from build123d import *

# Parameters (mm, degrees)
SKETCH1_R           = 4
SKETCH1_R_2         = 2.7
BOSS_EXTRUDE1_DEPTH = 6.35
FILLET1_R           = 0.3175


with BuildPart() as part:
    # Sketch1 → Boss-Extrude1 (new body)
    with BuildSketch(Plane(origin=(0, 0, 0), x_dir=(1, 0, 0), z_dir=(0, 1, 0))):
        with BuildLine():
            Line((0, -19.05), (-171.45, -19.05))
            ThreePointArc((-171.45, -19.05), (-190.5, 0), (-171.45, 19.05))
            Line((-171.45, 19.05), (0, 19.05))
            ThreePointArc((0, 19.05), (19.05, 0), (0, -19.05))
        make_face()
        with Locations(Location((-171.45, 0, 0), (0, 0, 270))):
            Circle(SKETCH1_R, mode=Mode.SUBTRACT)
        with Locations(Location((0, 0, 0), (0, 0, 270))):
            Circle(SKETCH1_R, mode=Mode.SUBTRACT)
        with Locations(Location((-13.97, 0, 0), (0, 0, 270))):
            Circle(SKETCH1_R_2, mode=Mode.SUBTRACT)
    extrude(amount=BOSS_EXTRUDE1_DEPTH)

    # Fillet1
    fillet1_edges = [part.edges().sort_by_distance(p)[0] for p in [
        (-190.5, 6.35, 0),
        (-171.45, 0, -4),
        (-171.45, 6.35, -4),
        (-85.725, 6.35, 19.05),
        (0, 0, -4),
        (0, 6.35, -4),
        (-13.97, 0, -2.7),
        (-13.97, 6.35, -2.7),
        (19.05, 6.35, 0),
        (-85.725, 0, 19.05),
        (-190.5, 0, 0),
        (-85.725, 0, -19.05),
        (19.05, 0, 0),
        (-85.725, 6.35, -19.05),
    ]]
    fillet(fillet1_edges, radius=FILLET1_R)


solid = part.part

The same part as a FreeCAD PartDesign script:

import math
import FreeCAD as App
import Part
import Sketcher

V = App.Vector
Q = App.Units.Quantity


def edges_at(feature, points):
    """Names of the edges that pass closest to the given points."""
    edges = feature.Shape.Edges
    near = lambda p: min(range(len(edges)), key=lambda i: edges[i].distToShape(Part.Vertex(*p))[0])
    return sorted({f"Edge{near(p) + 1}" for p in points})

doc = App.newDocument("Part")
body = doc.addObject("PartDesign::Body", "Body")

sketch1 = body.newObject("Sketcher::SketchObject", "Sketch")
sketch1.AttachmentSupport = (doc.getObject("XZ_Plane"), [""])
sketch1.MapMode = "FlatFace"
sketch1.addGeometry([
    Part.LineSegment(V(-171.45, 19.05, 0), V(0, 19.05, 0)),
    Part.ArcOfCircle(Part.Circle(V(0, 0, 0), V(0, 0, 1), 19.05), math.radians(-90), math.radians(90)),
    Part.LineSegment(V(0, -19.05, 0), V(-171.45, -19.05, 0)),
    Part.ArcOfCircle(Part.Circle(V(-171.45, 0, 0), V(0, 0, 1), 19.05), math.radians(90), math.radians(270)),
    Part.Circle(V(0, 0, 0), V(0, 0, 1), 4),
    Part.Circle(V(-13.97, 0, 0), V(0, 0, 1), 2.7),
    Part.Circle(V(-171.45, 0, 0), V(0, 0, 1), 4),
], False)
sketch1.addConstraint([
    Sketcher.Constraint("Tangent", 0, 2, 1, 2),
    Sketcher.Constraint("Tangent", 1, 1, 2, 1),
    Sketcher.Constraint("Tangent", 2, 2, 3, 2),
    Sketcher.Constraint("Tangent", 3, 1, 0, 1),
    Sketcher.Constraint("Horizontal", 0),
    Sketcher.Constraint("Horizontal", 2),
    Sketcher.Constraint("Coincident", 1, 3, -1, 1),
    Sketcher.Constraint("Coincident", 4, 3, -1, 1),
    Sketcher.Constraint("Coincident", 6, 3, 3, 3),
    Sketcher.Constraint("Equal", 4, 6),
    Sketcher.Constraint("PointOnObject", 5, 3, -1),
    Sketcher.Constraint("Radius", 1, Q("0.75 in")),
    Sketcher.Constraint("DistanceX", 0, 1, 0, 2, Q("6.75 in")),
    Sketcher.Constraint("DistanceX", 3, 3, 5, 3, Q("6.2 in")),
    Sketcher.Constraint("Diameter", 4, Q("8 mm")),
    Sketcher.Constraint("Diameter", 5, Q("5.4 mm")),
])
pad1 = body.newObject("PartDesign::Pad", "Pad")
pad1.Profile = sketch1
pad1.Length = Q("0.25 in")
pad1.Reversed = True
doc.recompute()

fillet = body.newObject("PartDesign::Fillet", "Fillet")
fillet.Base = (pad1, edges_at(pad1, [
    (-190.5, 6.35, 0),
    (-171.45, 0, -4),
    (-171.45, 6.35, -4),
    (-85.725, 6.35, 19.05),
    (0, 0, -4),
    (0, 6.35, -4),
    (-13.97, 0, -2.7),
    (-13.97, 6.35, -2.7),
    (19.05, 6.35, 0),
    (-85.725, 0, 19.05),
    (-190.5, 0, 0),
    (-85.725, 0, -19.05),
    (19.05, 0, 0),
    (-85.725, 6.35, -19.05),
]))
fillet.Radius = Q("0.0125 in")

doc.recompute()
